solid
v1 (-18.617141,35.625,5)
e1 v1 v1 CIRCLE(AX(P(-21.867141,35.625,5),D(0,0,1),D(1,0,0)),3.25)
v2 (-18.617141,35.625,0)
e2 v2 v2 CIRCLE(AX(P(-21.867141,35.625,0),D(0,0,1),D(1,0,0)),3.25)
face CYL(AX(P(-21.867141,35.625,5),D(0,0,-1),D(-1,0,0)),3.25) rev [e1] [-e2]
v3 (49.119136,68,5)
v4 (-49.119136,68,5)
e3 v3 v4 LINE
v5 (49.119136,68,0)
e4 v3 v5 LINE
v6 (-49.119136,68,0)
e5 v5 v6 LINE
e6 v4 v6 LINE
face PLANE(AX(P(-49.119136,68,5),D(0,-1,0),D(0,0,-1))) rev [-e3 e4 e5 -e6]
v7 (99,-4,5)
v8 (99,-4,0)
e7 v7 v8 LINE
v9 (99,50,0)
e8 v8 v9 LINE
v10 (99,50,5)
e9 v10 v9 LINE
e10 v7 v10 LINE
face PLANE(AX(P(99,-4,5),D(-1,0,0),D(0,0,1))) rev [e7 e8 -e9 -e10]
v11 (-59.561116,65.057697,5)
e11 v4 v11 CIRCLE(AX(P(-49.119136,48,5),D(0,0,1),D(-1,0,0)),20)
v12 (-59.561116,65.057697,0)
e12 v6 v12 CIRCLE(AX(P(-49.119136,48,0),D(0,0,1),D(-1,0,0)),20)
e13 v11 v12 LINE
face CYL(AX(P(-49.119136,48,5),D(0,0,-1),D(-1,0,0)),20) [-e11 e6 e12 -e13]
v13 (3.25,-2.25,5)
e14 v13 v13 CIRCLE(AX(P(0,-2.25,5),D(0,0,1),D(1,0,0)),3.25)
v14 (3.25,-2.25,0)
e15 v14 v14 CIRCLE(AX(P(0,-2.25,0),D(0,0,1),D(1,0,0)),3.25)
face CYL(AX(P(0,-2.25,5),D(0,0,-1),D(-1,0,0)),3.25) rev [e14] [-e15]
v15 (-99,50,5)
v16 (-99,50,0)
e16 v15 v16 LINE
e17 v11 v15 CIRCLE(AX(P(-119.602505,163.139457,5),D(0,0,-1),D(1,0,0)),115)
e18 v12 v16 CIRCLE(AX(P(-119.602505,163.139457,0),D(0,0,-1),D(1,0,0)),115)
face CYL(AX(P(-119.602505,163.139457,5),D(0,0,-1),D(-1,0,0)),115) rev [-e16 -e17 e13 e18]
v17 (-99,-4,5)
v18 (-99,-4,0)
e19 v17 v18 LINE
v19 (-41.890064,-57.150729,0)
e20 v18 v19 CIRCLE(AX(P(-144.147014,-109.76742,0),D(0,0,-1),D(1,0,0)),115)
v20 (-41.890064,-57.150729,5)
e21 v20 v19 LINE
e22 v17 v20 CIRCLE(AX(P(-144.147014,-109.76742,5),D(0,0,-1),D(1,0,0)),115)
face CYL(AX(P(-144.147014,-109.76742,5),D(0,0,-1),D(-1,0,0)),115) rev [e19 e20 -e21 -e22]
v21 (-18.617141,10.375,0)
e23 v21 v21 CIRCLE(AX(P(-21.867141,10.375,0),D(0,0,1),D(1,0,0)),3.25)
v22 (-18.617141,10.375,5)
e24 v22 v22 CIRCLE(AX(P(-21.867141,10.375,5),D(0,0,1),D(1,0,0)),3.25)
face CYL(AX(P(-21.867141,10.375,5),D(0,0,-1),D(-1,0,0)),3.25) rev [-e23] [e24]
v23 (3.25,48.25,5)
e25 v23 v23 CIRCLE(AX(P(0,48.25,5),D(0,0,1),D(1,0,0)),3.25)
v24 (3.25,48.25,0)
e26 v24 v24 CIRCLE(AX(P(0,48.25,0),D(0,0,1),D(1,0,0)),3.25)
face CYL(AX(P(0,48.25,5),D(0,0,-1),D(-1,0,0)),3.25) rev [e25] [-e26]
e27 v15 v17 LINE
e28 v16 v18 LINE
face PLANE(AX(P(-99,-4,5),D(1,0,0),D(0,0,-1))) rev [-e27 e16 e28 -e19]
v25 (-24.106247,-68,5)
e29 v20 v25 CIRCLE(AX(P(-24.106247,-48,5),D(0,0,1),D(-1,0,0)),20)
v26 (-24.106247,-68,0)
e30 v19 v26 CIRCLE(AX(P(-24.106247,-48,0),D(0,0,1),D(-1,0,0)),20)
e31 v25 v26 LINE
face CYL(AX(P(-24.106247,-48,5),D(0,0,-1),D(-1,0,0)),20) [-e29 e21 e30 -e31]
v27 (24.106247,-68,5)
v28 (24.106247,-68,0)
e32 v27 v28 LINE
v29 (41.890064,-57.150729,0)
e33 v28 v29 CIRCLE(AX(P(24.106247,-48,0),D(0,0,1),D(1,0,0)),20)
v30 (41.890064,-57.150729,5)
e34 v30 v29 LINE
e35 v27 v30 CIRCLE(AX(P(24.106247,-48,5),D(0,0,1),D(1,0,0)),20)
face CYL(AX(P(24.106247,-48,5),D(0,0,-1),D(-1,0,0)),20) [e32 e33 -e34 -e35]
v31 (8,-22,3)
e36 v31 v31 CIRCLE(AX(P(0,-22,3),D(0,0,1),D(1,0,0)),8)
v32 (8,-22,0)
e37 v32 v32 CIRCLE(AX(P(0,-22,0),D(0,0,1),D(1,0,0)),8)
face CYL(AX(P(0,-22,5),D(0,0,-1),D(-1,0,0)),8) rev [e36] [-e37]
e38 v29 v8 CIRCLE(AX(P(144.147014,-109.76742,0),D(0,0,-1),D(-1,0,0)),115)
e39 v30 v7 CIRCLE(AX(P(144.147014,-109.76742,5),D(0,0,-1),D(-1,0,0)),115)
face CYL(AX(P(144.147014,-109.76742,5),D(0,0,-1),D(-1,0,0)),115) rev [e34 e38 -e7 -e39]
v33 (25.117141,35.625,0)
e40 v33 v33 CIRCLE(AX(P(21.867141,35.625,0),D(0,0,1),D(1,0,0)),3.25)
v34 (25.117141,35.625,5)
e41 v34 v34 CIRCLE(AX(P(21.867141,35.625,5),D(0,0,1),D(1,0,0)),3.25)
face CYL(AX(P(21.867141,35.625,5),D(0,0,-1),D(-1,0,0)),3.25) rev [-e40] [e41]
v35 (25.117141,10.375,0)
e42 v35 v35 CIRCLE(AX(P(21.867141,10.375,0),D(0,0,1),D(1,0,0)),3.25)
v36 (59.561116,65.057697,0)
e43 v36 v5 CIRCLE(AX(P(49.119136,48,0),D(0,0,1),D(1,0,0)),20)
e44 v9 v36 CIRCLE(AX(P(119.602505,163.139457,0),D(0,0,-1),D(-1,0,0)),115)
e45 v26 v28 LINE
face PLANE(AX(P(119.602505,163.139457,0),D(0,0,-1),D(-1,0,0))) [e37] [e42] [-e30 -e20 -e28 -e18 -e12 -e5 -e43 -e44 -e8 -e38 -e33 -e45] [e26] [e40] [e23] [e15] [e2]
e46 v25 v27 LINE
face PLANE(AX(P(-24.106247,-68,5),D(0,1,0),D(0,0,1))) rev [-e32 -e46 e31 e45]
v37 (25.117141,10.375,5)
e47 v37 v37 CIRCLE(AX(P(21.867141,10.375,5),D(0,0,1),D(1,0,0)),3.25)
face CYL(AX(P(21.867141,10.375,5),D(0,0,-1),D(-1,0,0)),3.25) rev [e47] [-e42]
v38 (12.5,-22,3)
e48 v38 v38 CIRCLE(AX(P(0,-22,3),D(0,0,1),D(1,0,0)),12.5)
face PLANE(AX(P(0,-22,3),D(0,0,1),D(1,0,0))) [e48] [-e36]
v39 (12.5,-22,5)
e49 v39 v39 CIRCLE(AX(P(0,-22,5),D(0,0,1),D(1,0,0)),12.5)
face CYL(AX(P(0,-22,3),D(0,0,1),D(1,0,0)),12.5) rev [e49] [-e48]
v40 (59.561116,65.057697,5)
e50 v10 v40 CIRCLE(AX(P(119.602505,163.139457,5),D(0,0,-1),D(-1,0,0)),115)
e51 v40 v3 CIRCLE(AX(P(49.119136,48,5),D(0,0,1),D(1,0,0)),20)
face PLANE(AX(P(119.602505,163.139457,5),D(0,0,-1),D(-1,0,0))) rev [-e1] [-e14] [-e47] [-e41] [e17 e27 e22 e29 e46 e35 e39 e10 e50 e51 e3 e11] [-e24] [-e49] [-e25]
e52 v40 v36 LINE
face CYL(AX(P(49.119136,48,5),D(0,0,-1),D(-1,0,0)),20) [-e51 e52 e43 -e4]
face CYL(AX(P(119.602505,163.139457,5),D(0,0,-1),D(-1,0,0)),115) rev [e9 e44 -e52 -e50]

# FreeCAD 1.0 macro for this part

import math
import FreeCAD as App
import Part
import Sketcher

V = App.Vector

doc = App.newDocument("Part")
params = doc.addObject("Spreadsheet::Sheet", "Params")
for row, (alias, value) in enumerate([
    ("sketch1_diameter", "16 mm"),
    ("sketch1_radius", "20 mm"),
    ("sketch1_radius2", "115 mm"),
    ("sketch1_diameter2", "6.5 mm"),
    ("sketch1_height", "54 mm"),
    ("pad1_length", "5 mm"),
    ("sketch2_diameter", "25 mm"),
    ("sketch2_diameter2", "16 mm"),
    ("pocket1_length", "2 mm"),
], start=1):
    params.set(f"A{row}", alias)
    params.set(f"B{row}", "=" + value)
    params.setAlias(f"B{row}", alias)

body = doc.addObject("PartDesign::Body", "Body")

sketch1 = body.newObject("Sketcher::SketchObject", "Sketch")
sketch1.AttachmentSupport = (doc.getObject("XY_Plane"), [""])
sketch1.MapMode = "FlatFace"
sketch1.addGeometry([
    Part.LineSegment(V(49.1, 68, 0), V(-49.1, 68, 0)),
    Part.ArcOfCircle(Part.Circle(V(-49.1, 48, 0), V(0, 0, 1), 20), math.radians(90), math.radians(121)),
    Part.ArcOfCircle(Part.Circle(V(-119.6, 163.1, 0), V(0, 0, 1), 115), math.radians(-80), math.radians(-59)),
    Part.LineSegment(V(-99, 50, 0), V(-99, -4, 0)),
    Part.ArcOfCircle(Part.Circle(V(-144.1, -109.8, 0), V(0, 0, 1), 115), math.radians(27), math.radians(67)),
    Part.ArcOfCircle(Part.Circle(V(-24.1, -48, 0), V(0, 0, 1), 20), math.radians(-153), math.radians(-90)),
    Part.LineSegment(V(-24.1, -68, 0), V(24.1, -68, 0)),
    Part.ArcOfCircle(Part.Circle(V(24.1, -48, 0), V(0, 0, 1), 20), math.radians(-90), math.radians(-27)),
    Part.ArcOfCircle(Part.Circle(V(144.1, -109.8, 0), V(0, 0, 1), 115), math.radians(113), math.radians(153)),
    Part.LineSegment(V(99, -4, 0), V(99, 50, 0)),
    Part.ArcOfCircle(Part.Circle(V(119.6, 163.1, 0), V(0, 0, 1), 115), math.radians(-121), math.radians(-100)),
    Part.ArcOfCircle(Part.Circle(V(49.1, 48, 0), V(0, 0, 1), 20), math.radians(59), math.radians(90)),
    Part.Circle(V(21.9, 10.4, 0), V(0, 0, 1), 3.2),
    Part.Circle(V(0, -22, 0), V(0, 0, 1), 8),
    Part.Circle(V(0, -2.2, 0), V(0, 0, 1), 3.2),
    Part.Circle(V(-21.9, 10.4, 0), V(0, 0, 1), 3.2),
    Part.Circle(V(21.9, 35.6, 0), V(0, 0, 1), 3.2),
    Part.Circle(V(0, 48.2, 0), V(0, 0, 1), 3.2),
    Part.Circle(V(-21.9, 35.6, 0), V(0, 0, 1), 3.2),
], False)
sketch1.addConstraint([
    Sketcher.Constraint("Tangent", 0, 2, 1, 1),
    Sketcher.Constraint("Tangent", 1, 2, 2, 2),
    Sketcher.Constraint("Coincident", 2, 1, 3, 1),
    Sketcher.Constraint("Coincident", 3, 2, 4, 2),
    Sketcher.Constraint("Tangent", 4, 1, 5, 1),
    Sketcher.Constraint("Tangent", 5, 2, 6, 1),
    Sketcher.Constraint("Tangent", 6, 2, 7, 1),
    Sketcher.Constraint("Tangent", 7, 2, 8, 2),
    Sketcher.Constraint("Coincident", 8, 1, 9, 1),
    Sketcher.Constraint("Coincident", 9, 2, 10, 2),
    Sketcher.Constraint("Tangent", 10, 1, 11, 1),
    Sketcher.Constraint("Tangent", 11, 2, 0, 1),
    Sketcher.Constraint("Horizontal", 0),
    Sketcher.Constraint("Vertical", 3),
    Sketcher.Constraint("Horizontal", 6),
    Sketcher.Constraint("Vertical", 9),
    Sketcher.Constraint("Equal", 2, 4),
    Sketcher.Constraint("Equal", 1, 5),
    Sketcher.Constraint("Equal", 5, 7),
    Sketcher.Constraint("Equal", 4, 8),
    Sketcher.Constraint("Equal", 8, 10),
    Sketcher.Constraint("Equal", 7, 11),
    Sketcher.Constraint("Equal", 12, 14),
    Sketcher.Constraint("Equal", 14, 15),
    Sketcher.Constraint("Equal", 15, 16),
    Sketcher.Constraint("Equal", 16, 17),
    Sketcher.Constraint("Equal", 17, 18),
    Sketcher.Constraint("Symmetric", 4, 3, 8, 3, -2),
    Sketcher.Constraint("Symmetric", 2, 3, 10, 3, -2),
    Sketcher.Constraint("Symmetric", 12, 3, 15, 3, -2),
    Sketcher.Constraint("Symmetric", 16, 3, 18, 3, -2),
    Sketcher.Constraint("PointOnObject", 13, 3, -2),
    Sketcher.Constraint("PointOnObject", 14, 3, -2),
    Sketcher.Constraint("PointOnObject", 17, 3, -2),
    Sketcher.Constraint("Horizontal", 3, 2, 8, 1),
    Sketcher.Constraint("Vertical", 12, 3, 16, 3),
    Sketcher.Constraint("Diameter", 13, 16.0),
    Sketcher.Constraint("Radius", 1, 20.0),
    Sketcher.Constraint("Radius", 2, 115.0),
    Sketcher.Constraint("Diameter", 12, 6.5),
    Sketcher.Constraint("DistanceY", 3, 2, 3, 1, 54.0),
    Sketcher.Constraint("DistanceY", -1, 1, 1, 3, 48.0),
    Sketcher.Constraint("DistanceY", 5, 3, -1, 1, 48.0),
    Sketcher.Constraint("DistanceY", 13, 3, -1, 1, 22.0),
    Sketcher.Constraint("DistanceX", 2, 1, -1, 1, 99.0),
    Sketcher.Constraint("DistanceY", -1, 1, 2, 1, 50.0),
    Sketcher.Constraint("DistanceY", 14, 3, -1, 1, 2.25),
    Sketcher.Constraint("DistanceY", -1, 1, 17, 3, 48.25),
    Sketcher.Constraint("DistanceY", 12, 3, 16, 3, 25.25),
    Sketcher.Constraint("DistanceY", -1, 1, 12, 3, 10.375),
    Sketcher.Constraint("DistanceX", 0, 2, 0, 1, 98.238271),
    Sketcher.Constraint("DistanceX", 6, 1, 6, 2, 48.212493),
    Sketcher.Constraint("DistanceX", -1, 1, 12, 3, 21.867141),
])
sketch1.setExpression("Constraints[36]", "Params.sketch1_diameter")
sketch1.setExpression("Constraints[37]", "Params.sketch1_radius")
sketch1.setExpression("Constraints[38]", "Params.sketch1_radius2")
sketch1.setExpression("Constraints[39]", "Params.sketch1_diameter2")
sketch1.setExpression("Constraints[40]", "Params.sketch1_height")
pad1 = body.newObject("PartDesign::Pad", "Pad")
pad1.Profile = sketch1
pad1.setExpression("Length", "Params.pad1_length")

sketch2 = body.newObject("Sketcher::SketchObject", "Sketch001")
sketch2.AttachmentSupport = (doc.getObject("XY_Plane"), [""])
sketch2.MapMode = "FlatFace"
sketch2.AttachmentOffset = App.Placement(V(0, 0, 5), App.Rotation())
sketch2.addGeometry([
    Part.Circle(V(0, -22, 0), V(0, 0, 1), 12),
    Part.Circle(V(0, -22, 0), V(0, 0, 1), 8),
], False)
sketch2.addConstraint([
    Sketcher.Constraint("Coincident", 1, 3, 0, 3),
    Sketcher.Constraint("PointOnObject", 0, 3, -2),
    Sketcher.Constraint("Diameter", 0, 25.0),
    Sketcher.Constraint("Diameter", 1, 16.0),
    Sketcher.Constraint("DistanceY", 0, 3, -1, 1, 22.0),
])
sketch2.setExpression("Constraints[2]", "Params.sketch2_diameter")
sketch2.setExpression("Constraints[3]", "Params.sketch2_diameter2")
pocket1 = body.newObject("PartDesign::Pocket", "Pocket")
pocket1.Profile = sketch2
pocket1.setExpression("Length", "Params.pocket1_length")

doc.recompute()
